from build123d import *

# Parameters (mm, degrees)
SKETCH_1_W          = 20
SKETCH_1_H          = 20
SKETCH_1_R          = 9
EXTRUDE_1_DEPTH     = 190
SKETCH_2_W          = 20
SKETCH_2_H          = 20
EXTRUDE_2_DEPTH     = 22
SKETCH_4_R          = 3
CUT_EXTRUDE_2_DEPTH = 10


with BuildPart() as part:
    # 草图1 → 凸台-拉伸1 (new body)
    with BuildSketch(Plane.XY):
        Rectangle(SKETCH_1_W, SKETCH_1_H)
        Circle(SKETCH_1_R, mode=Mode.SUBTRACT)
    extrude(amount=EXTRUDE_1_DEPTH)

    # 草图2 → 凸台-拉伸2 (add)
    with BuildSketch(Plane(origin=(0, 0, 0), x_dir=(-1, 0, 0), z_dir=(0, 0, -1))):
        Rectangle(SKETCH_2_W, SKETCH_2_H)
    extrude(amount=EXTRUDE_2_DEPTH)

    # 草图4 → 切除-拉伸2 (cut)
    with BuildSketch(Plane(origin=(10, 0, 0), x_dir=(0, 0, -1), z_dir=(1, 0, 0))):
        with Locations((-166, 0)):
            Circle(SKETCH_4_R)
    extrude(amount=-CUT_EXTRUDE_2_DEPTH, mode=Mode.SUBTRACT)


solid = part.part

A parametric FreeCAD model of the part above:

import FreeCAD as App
import Part
import Sketcher
from FreeCAD import Vector


def add_polygon(sketch, points):
    """Adds a closed chain of lines whose ends are joined by coincident constraints."""
    first, n = sketch.GeometryCount, len(points)
    for a, b in zip(points, points[1:] + points[:1]):
        sketch.addGeometry(Part.LineSegment(App.Vector(*a, 0), App.Vector(*b, 0)), False)
    for i in range(n):
        sketch.addConstraint(Sketcher.Constraint("Coincident", first + i, 2, first + (i + 1) % n, 1))

doc = App.newDocument("Part")
body = doc.addObject("PartDesign::Body", "Body")

# Sketch on XY plane
sketch1 = body.newObject("Sketcher::SketchObject", "Sketch")
sketch1.AttachmentSupport = (doc.getObject("XY_Plane"), [""])
sketch1.MapMode = "FlatFace"
add_polygon(sketch1, [(-10, 10), (-10, -10), (10, -10), (10, 10)])  # lines 0-3
sketch1.addGeometry(Part.Circle(Vector(0, 0, 0), Vector(0, 0, 1), 9), False)  # 4
sketch1.addConstraint(Sketcher.Constraint("Vertical", 0))
sketch1.addConstraint(Sketcher.Constraint("Horizontal", 1))
sketch1.addConstraint(Sketcher.Constraint("Vertical", 2))
sketch1.addConstraint(Sketcher.Constraint("Horizontal", 3))
sketch1.addConstraint(Sketcher.Constraint("Coincident", 4, 3, -1, 1))
sketch1.addConstraint(Sketcher.Constraint("Symmetric", 0, 2, 2, 2, -1, 1))
sketch1.addConstraint(Sketcher.Constraint("Equal", 3, 0))
sketch1.addConstraint(Sketcher.Constraint("Diameter", 4, 18.0))
sketch1.addConstraint(Sketcher.Constraint("DistanceX", 1, 1, 1, 2, 20.0))
pad1 = body.newObject("PartDesign::Pad", "Pad")
pad1.Profile = sketch1
pad1.Length = 190

# Sketch on XY plane
sketch2 = body.newObject("Sketcher::SketchObject", "Sketch001")
sketch2.AttachmentSupport = (doc.getObject("XY_Plane"), [""])
sketch2.MapMode = "FlatFace"
add_polygon(sketch2, [(10, 10), (10, -10), (-10, -10), (-10, 10)])  # lines 0-3
sketch2.addConstraint(Sketcher.Constraint("Vertical", 0))
sketch2.addConstraint(Sketcher.Constraint("Horizontal", 1))
sketch2.addConstraint(Sketcher.Constraint("Vertical", 2))
sketch2.addConstraint(Sketcher.Constraint("Horizontal", 3))
sketch2.addConstraint(Sketcher.Constraint("Symmetric", 0, 2, 2, 2, -1, 1))
sketch2.addConstraint(Sketcher.Constraint("Equal", 3, 0))
sketch2.addConstraint(Sketcher.Constraint("DistanceX", 1, 2, 1, 1, 20.0))
pad2 = body.newObject("PartDesign::Pad", "Pad001")
pad2.Profile = sketch2
pad2.Length = 22
pad2.Reversed = True

# Sketch on YZ plane
sketch3 = body.newObject("Sketcher::SketchObject", "Sketch002")
sketch3.AttachmentSupport = (doc.getObject("YZ_Plane"), [""])
sketch3.MapMode = "FlatFace"
sketch3.AttachmentOffset = App.Placement(Vector(0, 0, 10), App.Rotation())
sketch3.addGeometry(Part.Circle(Vector(0, 166, 0), Vector(0, 0, 1), 3), False)
sketch3.addConstraint(Sketcher.Constraint("PointOnObject", 0, 3, -2))
sketch3.addConstraint(Sketcher.Constraint("Diameter", 0, 6.0))
sketch3.addConstraint(Sketcher.Constraint("DistanceY", -1, 1, 0, 3, 166.0))
pocket1 = body.newObject("PartDesign::Pocket", "Pocket")
pocket1.Profile = sketch3
pocket1.Length = 10

doc.recompute()
